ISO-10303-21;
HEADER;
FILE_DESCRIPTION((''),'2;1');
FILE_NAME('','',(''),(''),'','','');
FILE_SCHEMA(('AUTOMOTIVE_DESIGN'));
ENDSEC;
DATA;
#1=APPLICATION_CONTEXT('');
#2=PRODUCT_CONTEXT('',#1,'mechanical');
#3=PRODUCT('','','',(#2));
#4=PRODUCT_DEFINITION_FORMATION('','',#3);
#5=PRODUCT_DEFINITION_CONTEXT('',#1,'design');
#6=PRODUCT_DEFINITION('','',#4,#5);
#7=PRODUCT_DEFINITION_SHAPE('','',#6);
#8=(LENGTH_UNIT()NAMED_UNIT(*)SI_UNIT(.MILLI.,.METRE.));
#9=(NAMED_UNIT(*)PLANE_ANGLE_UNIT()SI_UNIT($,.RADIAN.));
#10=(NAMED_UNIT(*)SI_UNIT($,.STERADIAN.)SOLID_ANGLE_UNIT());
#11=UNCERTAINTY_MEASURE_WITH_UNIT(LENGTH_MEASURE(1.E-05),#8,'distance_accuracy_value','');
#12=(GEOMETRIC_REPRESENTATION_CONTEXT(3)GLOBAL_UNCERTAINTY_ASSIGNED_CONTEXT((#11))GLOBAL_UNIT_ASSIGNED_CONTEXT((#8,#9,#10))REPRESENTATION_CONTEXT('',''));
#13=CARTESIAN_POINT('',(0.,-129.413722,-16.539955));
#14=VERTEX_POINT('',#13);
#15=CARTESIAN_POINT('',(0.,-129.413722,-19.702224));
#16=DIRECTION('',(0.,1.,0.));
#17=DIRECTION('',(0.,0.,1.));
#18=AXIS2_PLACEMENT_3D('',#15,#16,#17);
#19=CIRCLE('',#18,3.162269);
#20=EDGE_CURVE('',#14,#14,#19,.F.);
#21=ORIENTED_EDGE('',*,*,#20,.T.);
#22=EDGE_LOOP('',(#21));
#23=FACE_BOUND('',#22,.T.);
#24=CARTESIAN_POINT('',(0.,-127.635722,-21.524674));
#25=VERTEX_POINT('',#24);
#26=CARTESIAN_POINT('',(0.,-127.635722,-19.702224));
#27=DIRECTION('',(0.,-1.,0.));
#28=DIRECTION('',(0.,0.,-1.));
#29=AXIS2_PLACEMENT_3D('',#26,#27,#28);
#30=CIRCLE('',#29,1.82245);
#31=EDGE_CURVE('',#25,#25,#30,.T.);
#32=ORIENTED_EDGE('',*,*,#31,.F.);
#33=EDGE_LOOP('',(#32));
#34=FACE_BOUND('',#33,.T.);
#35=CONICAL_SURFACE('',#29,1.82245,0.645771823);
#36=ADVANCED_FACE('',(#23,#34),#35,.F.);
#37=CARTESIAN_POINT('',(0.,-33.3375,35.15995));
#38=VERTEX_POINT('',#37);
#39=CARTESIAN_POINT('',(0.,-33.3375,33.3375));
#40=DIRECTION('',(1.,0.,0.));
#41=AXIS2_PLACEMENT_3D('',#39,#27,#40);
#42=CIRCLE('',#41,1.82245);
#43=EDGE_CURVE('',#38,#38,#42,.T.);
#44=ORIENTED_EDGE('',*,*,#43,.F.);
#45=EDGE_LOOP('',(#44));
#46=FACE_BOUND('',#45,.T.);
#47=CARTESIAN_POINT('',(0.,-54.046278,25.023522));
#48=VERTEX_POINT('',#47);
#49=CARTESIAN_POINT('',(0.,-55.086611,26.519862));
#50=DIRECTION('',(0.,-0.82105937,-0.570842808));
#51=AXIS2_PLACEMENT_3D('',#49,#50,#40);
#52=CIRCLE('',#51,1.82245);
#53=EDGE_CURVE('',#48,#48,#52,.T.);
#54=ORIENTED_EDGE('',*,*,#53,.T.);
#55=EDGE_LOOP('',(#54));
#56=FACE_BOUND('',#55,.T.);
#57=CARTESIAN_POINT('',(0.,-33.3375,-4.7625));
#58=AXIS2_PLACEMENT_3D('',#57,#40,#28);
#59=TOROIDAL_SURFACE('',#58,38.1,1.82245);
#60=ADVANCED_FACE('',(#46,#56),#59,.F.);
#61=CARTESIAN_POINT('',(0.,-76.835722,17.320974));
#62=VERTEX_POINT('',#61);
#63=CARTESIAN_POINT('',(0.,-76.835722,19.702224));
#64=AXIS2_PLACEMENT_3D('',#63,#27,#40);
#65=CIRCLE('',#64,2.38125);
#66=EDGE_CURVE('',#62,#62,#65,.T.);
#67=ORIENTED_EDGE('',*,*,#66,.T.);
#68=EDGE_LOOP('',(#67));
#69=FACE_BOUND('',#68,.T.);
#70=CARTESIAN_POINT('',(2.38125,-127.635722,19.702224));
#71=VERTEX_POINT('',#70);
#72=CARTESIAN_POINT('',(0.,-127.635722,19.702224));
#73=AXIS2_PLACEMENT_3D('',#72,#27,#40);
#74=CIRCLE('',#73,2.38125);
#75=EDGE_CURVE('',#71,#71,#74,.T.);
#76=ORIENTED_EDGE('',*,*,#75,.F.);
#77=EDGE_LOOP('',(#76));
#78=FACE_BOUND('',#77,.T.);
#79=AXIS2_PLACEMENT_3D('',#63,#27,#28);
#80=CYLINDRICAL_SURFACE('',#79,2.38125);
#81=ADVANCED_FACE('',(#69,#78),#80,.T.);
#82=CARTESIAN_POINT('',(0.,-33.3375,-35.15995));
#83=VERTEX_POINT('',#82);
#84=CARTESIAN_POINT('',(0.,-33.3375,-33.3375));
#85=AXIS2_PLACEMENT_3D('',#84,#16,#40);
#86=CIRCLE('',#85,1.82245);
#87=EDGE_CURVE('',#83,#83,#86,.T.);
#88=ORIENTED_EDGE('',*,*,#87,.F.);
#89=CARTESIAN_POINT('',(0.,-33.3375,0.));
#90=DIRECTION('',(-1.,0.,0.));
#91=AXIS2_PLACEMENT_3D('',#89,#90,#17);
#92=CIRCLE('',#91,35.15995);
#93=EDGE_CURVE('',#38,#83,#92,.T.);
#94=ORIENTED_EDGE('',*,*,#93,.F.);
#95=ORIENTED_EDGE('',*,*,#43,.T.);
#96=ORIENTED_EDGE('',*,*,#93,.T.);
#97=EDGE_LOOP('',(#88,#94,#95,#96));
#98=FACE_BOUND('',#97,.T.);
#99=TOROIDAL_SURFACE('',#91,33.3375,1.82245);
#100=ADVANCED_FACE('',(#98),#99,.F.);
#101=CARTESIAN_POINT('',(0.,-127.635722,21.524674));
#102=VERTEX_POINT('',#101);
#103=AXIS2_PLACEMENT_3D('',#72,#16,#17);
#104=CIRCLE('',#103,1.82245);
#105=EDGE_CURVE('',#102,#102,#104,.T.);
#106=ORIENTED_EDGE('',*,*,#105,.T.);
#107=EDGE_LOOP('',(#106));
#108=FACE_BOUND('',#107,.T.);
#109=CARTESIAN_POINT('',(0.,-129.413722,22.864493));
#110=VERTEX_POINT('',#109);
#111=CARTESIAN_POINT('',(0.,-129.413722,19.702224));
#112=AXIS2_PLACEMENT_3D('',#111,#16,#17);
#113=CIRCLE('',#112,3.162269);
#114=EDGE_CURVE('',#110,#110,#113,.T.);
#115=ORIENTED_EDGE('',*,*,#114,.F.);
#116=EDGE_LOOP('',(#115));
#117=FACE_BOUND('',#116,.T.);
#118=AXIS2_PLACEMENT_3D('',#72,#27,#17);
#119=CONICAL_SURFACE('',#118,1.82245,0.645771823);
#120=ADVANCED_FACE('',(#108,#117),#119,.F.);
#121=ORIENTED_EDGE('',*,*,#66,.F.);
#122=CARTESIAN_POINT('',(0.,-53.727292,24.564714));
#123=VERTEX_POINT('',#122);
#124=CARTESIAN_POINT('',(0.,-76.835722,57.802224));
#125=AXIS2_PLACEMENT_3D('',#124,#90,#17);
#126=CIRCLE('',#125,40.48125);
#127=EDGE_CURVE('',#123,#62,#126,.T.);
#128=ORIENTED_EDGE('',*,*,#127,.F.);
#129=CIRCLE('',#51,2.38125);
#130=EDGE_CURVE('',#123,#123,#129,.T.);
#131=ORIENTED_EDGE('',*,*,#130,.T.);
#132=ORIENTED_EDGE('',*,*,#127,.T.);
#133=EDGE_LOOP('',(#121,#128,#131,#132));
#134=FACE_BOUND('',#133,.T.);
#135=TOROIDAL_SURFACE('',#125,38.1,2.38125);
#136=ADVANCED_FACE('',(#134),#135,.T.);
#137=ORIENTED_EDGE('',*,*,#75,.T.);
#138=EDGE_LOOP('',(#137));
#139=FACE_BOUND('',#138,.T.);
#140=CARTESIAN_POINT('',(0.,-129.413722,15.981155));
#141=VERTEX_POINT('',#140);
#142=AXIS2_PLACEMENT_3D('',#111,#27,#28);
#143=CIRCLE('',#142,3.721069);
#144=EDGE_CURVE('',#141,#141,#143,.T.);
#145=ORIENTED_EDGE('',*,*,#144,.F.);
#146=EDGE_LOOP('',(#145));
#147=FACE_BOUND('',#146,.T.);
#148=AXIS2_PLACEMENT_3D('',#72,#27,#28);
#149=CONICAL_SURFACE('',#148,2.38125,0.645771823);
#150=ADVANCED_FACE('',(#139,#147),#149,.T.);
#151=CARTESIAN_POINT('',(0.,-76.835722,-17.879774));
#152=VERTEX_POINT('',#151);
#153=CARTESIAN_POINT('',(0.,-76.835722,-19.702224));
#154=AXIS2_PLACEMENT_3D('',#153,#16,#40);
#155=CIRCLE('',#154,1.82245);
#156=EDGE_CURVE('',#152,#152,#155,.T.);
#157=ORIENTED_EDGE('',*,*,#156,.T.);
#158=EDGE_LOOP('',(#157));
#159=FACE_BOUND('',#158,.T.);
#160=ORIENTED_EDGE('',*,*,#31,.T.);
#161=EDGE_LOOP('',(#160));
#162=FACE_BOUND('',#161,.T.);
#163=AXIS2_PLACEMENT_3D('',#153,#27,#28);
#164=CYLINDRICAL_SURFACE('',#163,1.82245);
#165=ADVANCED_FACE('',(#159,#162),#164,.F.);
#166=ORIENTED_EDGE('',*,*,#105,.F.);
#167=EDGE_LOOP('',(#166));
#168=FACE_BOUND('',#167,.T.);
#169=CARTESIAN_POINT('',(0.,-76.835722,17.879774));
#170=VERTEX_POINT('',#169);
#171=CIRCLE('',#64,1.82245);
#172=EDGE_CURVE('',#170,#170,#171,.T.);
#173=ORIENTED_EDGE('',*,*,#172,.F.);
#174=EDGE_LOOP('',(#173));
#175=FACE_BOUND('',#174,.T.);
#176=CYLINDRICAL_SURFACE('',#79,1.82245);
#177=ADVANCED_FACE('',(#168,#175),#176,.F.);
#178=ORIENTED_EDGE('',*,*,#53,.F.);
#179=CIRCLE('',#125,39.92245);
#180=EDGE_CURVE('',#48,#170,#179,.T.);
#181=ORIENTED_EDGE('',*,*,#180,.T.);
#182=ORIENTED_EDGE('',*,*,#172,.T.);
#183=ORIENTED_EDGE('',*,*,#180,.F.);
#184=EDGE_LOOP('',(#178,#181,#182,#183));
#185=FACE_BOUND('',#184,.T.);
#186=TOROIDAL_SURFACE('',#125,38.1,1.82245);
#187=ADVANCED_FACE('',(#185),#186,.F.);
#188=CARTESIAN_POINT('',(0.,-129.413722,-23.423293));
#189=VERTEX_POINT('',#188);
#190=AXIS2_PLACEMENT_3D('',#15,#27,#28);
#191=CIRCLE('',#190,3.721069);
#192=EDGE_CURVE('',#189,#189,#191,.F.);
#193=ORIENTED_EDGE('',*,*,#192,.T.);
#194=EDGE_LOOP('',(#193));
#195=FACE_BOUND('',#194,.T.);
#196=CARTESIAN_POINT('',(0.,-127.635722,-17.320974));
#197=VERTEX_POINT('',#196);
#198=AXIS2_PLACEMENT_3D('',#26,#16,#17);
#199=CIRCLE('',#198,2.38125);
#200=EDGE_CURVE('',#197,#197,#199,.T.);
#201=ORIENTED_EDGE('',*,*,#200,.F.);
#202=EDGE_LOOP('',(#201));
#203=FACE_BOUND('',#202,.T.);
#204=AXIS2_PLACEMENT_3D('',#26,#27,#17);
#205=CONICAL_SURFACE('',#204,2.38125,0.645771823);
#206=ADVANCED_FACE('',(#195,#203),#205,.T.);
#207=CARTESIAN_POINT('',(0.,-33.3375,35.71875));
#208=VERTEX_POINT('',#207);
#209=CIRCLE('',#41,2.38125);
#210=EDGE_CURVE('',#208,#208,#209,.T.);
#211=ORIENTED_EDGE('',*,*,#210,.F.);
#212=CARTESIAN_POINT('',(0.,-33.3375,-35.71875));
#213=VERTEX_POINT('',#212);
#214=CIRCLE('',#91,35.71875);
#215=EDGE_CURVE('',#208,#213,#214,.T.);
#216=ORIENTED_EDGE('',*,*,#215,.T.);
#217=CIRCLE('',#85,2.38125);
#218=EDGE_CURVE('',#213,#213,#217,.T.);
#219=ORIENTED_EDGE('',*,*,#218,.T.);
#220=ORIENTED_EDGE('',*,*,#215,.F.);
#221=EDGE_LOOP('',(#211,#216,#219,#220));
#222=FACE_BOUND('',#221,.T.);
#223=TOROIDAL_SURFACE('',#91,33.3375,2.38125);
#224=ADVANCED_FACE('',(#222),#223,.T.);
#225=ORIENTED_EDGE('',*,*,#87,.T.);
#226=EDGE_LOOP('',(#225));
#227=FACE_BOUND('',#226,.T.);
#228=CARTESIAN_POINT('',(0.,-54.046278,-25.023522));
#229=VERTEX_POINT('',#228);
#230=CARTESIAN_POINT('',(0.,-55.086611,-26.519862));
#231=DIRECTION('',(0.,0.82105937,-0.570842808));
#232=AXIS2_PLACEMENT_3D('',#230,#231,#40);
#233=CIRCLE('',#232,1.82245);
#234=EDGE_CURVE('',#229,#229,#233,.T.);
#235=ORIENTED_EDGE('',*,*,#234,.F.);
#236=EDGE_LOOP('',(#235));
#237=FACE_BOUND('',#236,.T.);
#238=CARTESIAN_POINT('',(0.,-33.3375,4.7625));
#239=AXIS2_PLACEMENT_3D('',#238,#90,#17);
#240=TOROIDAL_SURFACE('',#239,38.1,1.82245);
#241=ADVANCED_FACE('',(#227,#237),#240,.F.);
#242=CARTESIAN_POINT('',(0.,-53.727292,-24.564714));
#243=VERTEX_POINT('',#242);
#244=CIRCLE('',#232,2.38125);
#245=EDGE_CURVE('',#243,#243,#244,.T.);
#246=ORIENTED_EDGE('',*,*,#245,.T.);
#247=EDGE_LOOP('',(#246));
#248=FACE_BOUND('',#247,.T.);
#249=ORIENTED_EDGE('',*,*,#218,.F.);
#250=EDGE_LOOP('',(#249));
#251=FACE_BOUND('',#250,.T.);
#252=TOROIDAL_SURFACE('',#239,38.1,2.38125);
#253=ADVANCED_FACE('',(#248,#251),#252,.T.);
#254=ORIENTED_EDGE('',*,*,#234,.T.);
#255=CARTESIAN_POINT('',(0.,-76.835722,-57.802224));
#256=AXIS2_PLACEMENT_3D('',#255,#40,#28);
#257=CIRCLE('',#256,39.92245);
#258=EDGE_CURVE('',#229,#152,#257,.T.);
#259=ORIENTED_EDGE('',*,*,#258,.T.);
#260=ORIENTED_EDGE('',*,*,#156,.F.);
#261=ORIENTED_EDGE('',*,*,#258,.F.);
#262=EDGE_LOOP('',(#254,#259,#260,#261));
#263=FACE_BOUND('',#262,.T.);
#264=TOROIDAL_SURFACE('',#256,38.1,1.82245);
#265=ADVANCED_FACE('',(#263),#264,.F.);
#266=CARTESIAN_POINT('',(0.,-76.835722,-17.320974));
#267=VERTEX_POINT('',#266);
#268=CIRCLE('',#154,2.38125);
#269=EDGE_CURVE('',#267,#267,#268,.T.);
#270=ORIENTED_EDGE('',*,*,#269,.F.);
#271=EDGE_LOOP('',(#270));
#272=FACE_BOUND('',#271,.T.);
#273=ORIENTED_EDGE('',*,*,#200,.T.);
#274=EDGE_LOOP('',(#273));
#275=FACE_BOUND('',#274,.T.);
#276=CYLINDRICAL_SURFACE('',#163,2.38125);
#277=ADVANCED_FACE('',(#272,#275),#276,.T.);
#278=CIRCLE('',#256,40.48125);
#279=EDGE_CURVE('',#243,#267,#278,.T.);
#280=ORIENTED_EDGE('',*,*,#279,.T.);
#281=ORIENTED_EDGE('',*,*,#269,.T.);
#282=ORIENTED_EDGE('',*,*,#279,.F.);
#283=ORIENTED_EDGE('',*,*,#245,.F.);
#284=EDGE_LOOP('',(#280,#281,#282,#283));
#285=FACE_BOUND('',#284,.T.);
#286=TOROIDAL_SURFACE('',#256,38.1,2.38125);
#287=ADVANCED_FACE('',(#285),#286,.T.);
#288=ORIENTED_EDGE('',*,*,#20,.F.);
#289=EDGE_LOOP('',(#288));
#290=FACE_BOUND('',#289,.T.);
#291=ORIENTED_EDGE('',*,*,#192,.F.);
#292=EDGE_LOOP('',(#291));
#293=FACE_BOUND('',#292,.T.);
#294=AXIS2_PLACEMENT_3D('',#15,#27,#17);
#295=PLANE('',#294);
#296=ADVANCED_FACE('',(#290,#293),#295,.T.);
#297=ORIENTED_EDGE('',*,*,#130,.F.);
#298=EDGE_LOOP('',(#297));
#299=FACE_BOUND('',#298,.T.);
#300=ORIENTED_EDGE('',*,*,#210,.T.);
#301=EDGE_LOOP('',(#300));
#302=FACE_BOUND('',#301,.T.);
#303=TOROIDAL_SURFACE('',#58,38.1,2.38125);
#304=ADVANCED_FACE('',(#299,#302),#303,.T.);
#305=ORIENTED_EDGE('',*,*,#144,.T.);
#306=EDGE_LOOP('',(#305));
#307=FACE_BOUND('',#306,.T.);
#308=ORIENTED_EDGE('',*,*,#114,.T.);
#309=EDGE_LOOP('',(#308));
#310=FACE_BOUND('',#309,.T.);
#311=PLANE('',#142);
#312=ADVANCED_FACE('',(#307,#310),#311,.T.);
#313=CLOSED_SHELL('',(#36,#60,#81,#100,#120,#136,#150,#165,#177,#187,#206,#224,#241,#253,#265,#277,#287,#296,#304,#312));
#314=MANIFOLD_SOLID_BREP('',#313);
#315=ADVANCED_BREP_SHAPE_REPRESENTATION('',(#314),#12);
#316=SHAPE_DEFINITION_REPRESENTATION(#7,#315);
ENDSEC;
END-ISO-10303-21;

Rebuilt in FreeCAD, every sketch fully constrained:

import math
import FreeCAD as App
import Part
import Sketcher
Q = App.Units.Quantity

doc = App.newDocument("Part")
body = doc.addObject("PartDesign::Body", "Body")

# Sketch on XY plane
sketch1 = body.newObject("Sketcher::SketchObject", "Sketch")
sketch1.AttachmentSupport = (doc.getObject("XY_Plane"), [""])
sketch1.MapMode = "FlatFace"
sketch1.addGeometry(Part.Circle(App.Vector(0, 0, 0), App.Vector(0, 0, 1), 2.38125), False)
sketch1.addGeometry(Part.Circle(App.Vector(0, 0, 0), App.Vector(0, 0, 1), 1.82245), False)
sketch1.addConstraint(Sketcher.Constraint("Coincident", 0, 3, -1, 1))
sketch1.addConstraint(Sketcher.Constraint("Coincident", 1, 3, -1, 1))
sketch1.addConstraint(Sketcher.Constraint("Diameter", 0, Q("0.1875 in")))
sketch1.addConstraint(Sketcher.Constraint("Diameter", 1, Q("0.1435 in")))

# Sketch on YZ plane
sketch2 = body.newObject("Sketcher::SketchObject", "Sketch001")
sketch2.AttachmentSupport = (doc.getObject("YZ_Plane"), [""])
sketch2.MapMode = "FlatFace"
sketch2.addGeometry(Part.LineSegment(App.Vector(-127.635722, 19.702224, 0), App.Vector(-76.835722, 19.702224, 0)), False)
sketch2.addGeometry(Part.ArcOfCircle(Part.Circle(App.Vector(-76.835722, 57.802224, 0), App.Vector(0, 0, 1), 38.1), math.radians(-90), math.radians(-55.190982)), False)
sketch2.addGeometry(Part.ArcOfCircle(Part.Circle(App.Vector(-33.3375, -4.7625, 0), App.Vector(0, 0, 1), 38.1), math.radians(90), math.radians(124.809018)), False)
sketch2.addGeometry(Part.ArcOfCircle(Part.Circle(App.Vector(-33.3375, 0, 0), App.Vector(0, 0, 1), 33.3375), math.radians(0), math.radians(90)), False)
sketch2.addConstraint(Sketcher.Constraint("Tangent", 0, 2, 1, 1))
sketch2.addConstraint(Sketcher.Constraint("Tangent", 1, 2, 2, 2))
sketch2.addConstraint(Sketcher.Constraint("Tangent", 2, 1, 3, 2))
sketch2.addConstraint(Sketcher.Constraint("Horizontal", 0))
sketch2.addConstraint(Sketcher.Constraint("Coincident", 3, 1, -1, 1))
sketch2.addConstraint(Sketcher.Constraint("Equal", 1, 2))
sketch2.addConstraint(Sketcher.Constraint("PointOnObject", 3, 3, -1))
sketch2.addConstraint(Sketcher.Constraint("Vertical", 2, 3, 3, 3))
sketch2.addConstraint(Sketcher.Constraint("Radius", 1, Q("1.5 in")))
sketch2.addConstraint(Sketcher.Constraint("DistanceX", 0, 1, 0, 2, Q("2 in")))
sketch2.addConstraint(Sketcher.Constraint("Radius", 3, Q("1.3125 in")))
sketch2.addConstraint(Sketcher.Constraint("DistanceX", 1, 3, -1, 1, Q("76.835722 mm")))
doc.recompute()

additivepipe = body.newObject("PartDesign::AdditivePipe", "AdditivePipe")
additivepipe.Profile = sketch1
additivepipe.Spine = (sketch2, ["Edge1", "Edge2", "Edge3", "Edge4"])

# Sketch on XZ plane
sketch3 = body.newObject("Sketcher::SketchObject", "Sketch002")
sketch3.AttachmentSupport = (doc.getObject("XZ_Plane"), [""])
sketch3.MapMode = "FlatFace"
sketch3.AttachmentOffset = App.Placement(App.Vector(0, 0, 127.635722), App.Rotation())
sketch3.addGeometry(Part.Circle(App.Vector(0, 19.702224, 0), App.Vector(0, 0, 1), 2.38125), False)
sketch3.addConstraint(Sketcher.Constraint("PointOnObject", 0, 3, -2))
sketch3.addConstraint(Sketcher.Constraint("Diameter", 0, Q("0.1875 in")))
sketch3.addConstraint(Sketcher.Constraint("DistanceY", -1, 1, 0, 3, Q("19.702224 mm")))
pad1 = body.newObject("PartDesign::Pad", "Pad")
pad1.Profile = sketch3
pad1.Length = Q("0.07 in")
pad1.TaperAngle = 37

# Sketch on XZ plane
sketch4 = body.newObject("Sketcher::SketchObject", "Sketch003")
sketch4.AttachmentSupport = (doc.getObject("XZ_Plane"), [""])
sketch4.MapMode = "FlatFace"
sketch4.AttachmentOffset = App.Placement(App.Vector(0, 0, 127.635722), App.Rotation())
sketch4.addGeometry(Part.Circle(App.Vector(0, 19.702224, 0), App.Vector(0, 0, 1), 1.82245), False)
sketch4.addConstraint(Sketcher.Constraint("PointOnObject", 0, 3, -2))
sketch4.addConstraint(Sketcher.Constraint("Diameter", 0, Q("0.1435 in")))
sketch4.addConstraint(Sketcher.Constraint("DistanceY", -1, 1, 0, 3, Q("19.702224 mm")))
pocket1 = body.newObject("PartDesign::Pocket", "Pocket")
pocket1.Profile = sketch4
pocket1.Type = "ThroughAll"
pocket1.Reversed = True
pocket1.TaperAngle = 37
doc.recompute()

mirrored = body.newObject("PartDesign::Mirrored", "Mirrored")
mirrored.Originals = [additivepipe, pad1, pocket1]
mirrored.MirrorPlane = (doc.getObject("XY_Plane"), [""])
body.Tip = mirrored

doc.recompute()
